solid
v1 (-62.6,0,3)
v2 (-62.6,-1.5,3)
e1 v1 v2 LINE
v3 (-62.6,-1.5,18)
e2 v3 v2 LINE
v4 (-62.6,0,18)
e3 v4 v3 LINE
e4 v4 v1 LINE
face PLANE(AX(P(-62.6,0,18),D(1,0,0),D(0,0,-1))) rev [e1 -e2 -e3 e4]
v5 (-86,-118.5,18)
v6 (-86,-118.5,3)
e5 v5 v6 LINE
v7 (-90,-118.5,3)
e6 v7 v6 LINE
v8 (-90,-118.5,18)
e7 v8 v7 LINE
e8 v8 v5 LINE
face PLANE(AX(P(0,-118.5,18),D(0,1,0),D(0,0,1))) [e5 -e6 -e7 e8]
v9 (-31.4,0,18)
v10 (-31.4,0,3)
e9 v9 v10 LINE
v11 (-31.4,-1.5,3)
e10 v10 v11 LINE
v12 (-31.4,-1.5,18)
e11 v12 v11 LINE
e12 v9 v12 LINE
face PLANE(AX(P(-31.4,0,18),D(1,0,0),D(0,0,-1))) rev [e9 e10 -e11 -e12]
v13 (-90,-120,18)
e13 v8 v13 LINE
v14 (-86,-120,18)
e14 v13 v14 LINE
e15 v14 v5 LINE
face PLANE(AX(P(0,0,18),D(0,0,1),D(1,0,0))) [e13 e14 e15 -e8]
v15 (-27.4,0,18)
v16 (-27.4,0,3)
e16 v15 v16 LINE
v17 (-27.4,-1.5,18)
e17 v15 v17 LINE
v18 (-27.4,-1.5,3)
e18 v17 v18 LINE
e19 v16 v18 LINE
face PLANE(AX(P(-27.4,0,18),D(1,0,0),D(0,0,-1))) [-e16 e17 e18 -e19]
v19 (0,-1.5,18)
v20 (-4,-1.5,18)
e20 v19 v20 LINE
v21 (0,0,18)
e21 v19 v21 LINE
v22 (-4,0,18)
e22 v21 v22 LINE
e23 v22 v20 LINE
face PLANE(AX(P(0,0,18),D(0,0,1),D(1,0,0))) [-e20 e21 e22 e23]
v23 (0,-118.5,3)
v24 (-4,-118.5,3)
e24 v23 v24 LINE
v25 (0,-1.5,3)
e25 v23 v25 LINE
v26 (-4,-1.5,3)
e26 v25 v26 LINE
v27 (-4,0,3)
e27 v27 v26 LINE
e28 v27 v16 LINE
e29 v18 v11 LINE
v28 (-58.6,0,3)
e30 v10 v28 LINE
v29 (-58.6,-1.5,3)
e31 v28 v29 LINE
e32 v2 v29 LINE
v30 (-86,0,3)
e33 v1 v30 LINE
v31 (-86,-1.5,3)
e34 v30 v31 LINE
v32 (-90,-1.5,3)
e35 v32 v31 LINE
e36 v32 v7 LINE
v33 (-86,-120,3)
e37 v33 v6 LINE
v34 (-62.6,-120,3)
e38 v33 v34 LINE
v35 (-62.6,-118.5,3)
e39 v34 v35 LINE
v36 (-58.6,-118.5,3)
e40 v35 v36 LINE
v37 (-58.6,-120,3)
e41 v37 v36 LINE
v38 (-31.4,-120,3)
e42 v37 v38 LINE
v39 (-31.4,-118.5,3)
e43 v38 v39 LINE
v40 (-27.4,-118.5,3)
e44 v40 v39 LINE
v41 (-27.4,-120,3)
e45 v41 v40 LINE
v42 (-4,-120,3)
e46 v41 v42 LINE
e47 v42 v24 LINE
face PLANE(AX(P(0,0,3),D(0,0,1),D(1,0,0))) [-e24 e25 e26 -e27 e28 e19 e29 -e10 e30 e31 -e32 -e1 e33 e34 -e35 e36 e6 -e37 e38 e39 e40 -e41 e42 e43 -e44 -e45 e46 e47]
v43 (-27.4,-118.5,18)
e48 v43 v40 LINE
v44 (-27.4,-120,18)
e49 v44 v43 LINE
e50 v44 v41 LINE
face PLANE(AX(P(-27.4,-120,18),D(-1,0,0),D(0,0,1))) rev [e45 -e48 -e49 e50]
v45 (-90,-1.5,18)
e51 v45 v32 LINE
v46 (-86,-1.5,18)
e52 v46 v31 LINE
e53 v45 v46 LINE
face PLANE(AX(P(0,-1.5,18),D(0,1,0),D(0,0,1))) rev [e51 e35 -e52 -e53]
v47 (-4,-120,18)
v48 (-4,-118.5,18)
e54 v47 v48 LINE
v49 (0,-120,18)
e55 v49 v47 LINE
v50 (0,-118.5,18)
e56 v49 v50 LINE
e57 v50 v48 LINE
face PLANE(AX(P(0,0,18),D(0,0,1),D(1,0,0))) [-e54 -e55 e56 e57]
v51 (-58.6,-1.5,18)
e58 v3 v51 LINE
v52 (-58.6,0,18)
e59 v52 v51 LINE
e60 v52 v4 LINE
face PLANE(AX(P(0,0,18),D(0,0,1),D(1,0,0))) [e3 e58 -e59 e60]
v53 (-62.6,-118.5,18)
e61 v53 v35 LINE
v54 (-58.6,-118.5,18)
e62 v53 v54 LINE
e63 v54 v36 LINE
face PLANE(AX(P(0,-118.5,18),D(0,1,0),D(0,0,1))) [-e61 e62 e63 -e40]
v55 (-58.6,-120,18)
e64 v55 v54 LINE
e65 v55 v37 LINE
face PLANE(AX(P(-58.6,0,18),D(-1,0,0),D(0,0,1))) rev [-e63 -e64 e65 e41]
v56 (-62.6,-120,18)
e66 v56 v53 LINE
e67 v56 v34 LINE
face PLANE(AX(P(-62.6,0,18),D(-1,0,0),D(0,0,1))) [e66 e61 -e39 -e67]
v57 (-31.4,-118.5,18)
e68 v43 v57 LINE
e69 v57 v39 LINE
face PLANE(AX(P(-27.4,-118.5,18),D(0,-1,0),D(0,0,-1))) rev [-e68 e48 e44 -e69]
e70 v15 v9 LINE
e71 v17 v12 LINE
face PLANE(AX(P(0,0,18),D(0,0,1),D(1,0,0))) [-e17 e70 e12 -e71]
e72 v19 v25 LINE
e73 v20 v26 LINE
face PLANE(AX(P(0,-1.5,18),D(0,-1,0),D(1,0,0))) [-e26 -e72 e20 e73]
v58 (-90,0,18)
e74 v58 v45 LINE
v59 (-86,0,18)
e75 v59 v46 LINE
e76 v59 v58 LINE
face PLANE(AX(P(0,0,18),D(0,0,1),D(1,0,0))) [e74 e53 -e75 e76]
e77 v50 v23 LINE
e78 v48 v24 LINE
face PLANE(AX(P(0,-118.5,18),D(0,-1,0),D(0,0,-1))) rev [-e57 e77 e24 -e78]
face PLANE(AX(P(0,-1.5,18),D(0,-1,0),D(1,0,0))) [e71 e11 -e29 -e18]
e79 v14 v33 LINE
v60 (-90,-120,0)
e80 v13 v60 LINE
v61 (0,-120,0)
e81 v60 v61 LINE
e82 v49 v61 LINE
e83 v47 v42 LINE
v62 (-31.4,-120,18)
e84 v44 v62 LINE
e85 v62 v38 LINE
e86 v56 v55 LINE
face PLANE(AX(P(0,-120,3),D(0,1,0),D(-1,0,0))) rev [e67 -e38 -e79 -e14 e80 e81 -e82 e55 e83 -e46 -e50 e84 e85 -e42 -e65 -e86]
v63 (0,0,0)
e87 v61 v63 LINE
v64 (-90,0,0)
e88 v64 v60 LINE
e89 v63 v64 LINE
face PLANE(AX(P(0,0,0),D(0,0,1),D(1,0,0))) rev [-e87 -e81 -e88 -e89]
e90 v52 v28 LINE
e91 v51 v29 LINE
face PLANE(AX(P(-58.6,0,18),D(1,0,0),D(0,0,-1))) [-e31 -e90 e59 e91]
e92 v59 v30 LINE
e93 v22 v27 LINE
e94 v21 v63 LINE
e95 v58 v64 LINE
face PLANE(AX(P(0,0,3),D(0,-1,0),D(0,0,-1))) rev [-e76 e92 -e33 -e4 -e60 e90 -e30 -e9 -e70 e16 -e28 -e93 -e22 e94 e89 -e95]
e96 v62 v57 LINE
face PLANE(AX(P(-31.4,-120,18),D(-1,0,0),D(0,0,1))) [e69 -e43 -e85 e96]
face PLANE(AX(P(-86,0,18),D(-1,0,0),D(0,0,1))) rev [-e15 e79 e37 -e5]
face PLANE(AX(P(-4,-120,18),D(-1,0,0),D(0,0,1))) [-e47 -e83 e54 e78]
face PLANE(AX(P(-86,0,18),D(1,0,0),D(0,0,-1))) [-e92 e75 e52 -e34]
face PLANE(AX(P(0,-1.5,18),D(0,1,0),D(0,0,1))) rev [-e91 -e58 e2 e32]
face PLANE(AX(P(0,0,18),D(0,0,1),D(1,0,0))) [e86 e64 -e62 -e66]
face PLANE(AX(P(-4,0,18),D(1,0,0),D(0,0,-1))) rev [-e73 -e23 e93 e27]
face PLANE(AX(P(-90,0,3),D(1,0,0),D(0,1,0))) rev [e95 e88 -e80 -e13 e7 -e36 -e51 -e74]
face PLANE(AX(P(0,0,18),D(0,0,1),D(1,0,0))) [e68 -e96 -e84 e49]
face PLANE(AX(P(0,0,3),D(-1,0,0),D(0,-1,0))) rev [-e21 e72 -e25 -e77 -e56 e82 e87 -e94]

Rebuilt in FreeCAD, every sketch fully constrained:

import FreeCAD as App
import Part
import Sketcher


def add_polygon(sketch, points):
    """Adds a closed chain of lines whose ends are joined by coincident constraints."""
    first, n = sketch.GeometryCount, len(points)
    for a, b in zip(points, points[1:] + points[:1]):
        sketch.addGeometry(Part.LineSegment(App.Vector(*a, 0), App.Vector(*b, 0)), False)
    for i in range(n):
        sketch.addConstraint(Sketcher.Constraint("Coincident", first + i, 2, first + (i + 1) % n, 1))

doc = App.newDocument("Part")
params = doc.addObject("Spreadsheet::Sheet", "Params")
for row, (alias, value) in enumerate([
    ("sketch1_width", "90 mm"),
    ("sketch1_height", "120 mm"),
    ("pad1_length", "3 mm"),
    ("sketch2_width", "4 mm"),
    ("sketch2_height", "1.5 mm"),
    ("pad2_length", "15 mm"),
], start=1):
    params.set(f"A{row}", alias)
    params.set(f"B{row}", "=" + value)
    params.setAlias(f"B{row}", alias)

body = doc.addObject("PartDesign::Body", "Body")

# Sketch on XY plane
sketch1 = doc.addObject("Sketcher::SketchObject", "Sketch")
body.addObject(sketch1)
sketch1.AttachmentSupport = (doc.XY_Plane, [""])
sketch1.MapMode = "FlatFace"
add_polygon(sketch1, [(-90, -120), (0, -120), (0, 0), (-90, 0)])  # lines 0-3
sketch1.addConstraint([
    Sketcher.Constraint("Horizontal", 0),
    Sketcher.Constraint("Vertical", 1),
    Sketcher.Constraint("Horizontal", 2),
    Sketcher.Constraint("Vertical", 3),
    Sketcher.Constraint("Coincident", 1, 2, -1, 1),
    Sketcher.Constraint("DistanceX", 0, 1, 0, 2, 90.0),
    Sketcher.Constraint("DistanceY", 1, 1, 1, 2, 120.0),
])
sketch1.setExpression("Constraints[9]", "Params.sketch1_width")
sketch1.setExpression("Constraints[10]", "Params.sketch1_height")
pad1 = doc.addObject("PartDesign::Pad", "Pad")
body.addObject(pad1)
pad1.Profile = sketch1
pad1.setExpression("Length", "Params.pad1_length")

# Sketch on XY plane
sketch2 = doc.addObject("Sketcher::SketchObject", "Sketch001")
body.addObject(sketch2)
sketch2.AttachmentSupport = (doc.XY_Plane, [""])
sketch2.MapMode = "FlatFace"
sketch2.AttachmentOffset = App.Placement(App.Vector(0, 0, 3), App.Rotation())
add_polygon(sketch2, [(-90, 0), (-90, -1.5), (-86, -1.5), (-86, 0)])  # lines 0-3
add_polygon(sketch2, [(-62.6, 0), (-62.6, -1.5), (-58.6, -1.5), (-58.6, 0)])  # lines 4-7
add_polygon(sketch2, [(-31.4, 0), (-31.4, -1.5), (-27.4, -1.5), (-27.4, 0)])  # lines 8-11
add_polygon(sketch2, [(-4, 0), (-4, -1.5), (0, -1.5), (0, 0)])  # lines 12-15
add_polygon(sketch2, [(-90, -118.5), (-90, -120), (-86, -120), (-86, -118.5)])  # lines 16-19
add_polygon(sketch2, [(-62.6, -118.5), (-62.6, -120), (-58.6, -120), (-58.6, -118.5)])  # lines 20-23
add_polygon(sketch2, [(-31.4, -118.5), (-31.4, -120), (-27.4, -120), (-27.4, -118.5)])  # lines 24-27
add_polygon(sketch2, [(-4, -118.5), (-4, -120), (0, -120), (0, -118.5)])  # lines 28-31
sketch2.addConstraint([
    Sketcher.Constraint("Vertical", 0),
    Sketcher.Constraint("Horizontal", 1),
    Sketcher.Constraint("Vertical", 2),
    Sketcher.Constraint("Horizontal", 3),
    Sketcher.Constraint("Vertical", 4),
    Sketcher.Constraint("Horizontal", 5),
    Sketcher.Constraint("Vertical", 6),
    Sketcher.Constraint("Horizontal", 7),
    Sketcher.Constraint("Vertical", 8),
    Sketcher.Constraint("Horizontal", 9),
    Sketcher.Constraint("Vertical", 10),
    Sketcher.Constraint("Horizontal", 11),
    Sketcher.Constraint("Vertical", 12),
    Sketcher.Constraint("Horizontal", 13),
    Sketcher.Constraint("Vertical", 14),
    Sketcher.Constraint("Horizontal", 15),
    Sketcher.Constraint("Vertical", 16),
    Sketcher.Constraint("Horizontal", 17),
    Sketcher.Constraint("Vertical", 18),
    Sketcher.Constraint("Horizontal", 19),
    Sketcher.Constraint("Vertical", 20),
    Sketcher.Constraint("Horizontal", 21),
    Sketcher.Constraint("Vertical", 22),
    Sketcher.Constraint("Horizontal", 23),
    Sketcher.Constraint("Vertical", 24),
    Sketcher.Constraint("Horizontal", 25),
    Sketcher.Constraint("Vertical", 26),
    Sketcher.Constraint("Horizontal", 27),
    Sketcher.Constraint("Vertical", 28),
    Sketcher.Constraint("Horizontal", 29),
    Sketcher.Constraint("Vertical", 30),
    Sketcher.Constraint("Horizontal", 31),
    Sketcher.Constraint("Coincident", 14, 2, -1, 1),
    Sketcher.Constraint("PointOnObject", 2, 2, -1),
    Sketcher.Constraint("PointOnObject", 6, 2, -1),
    Sketcher.Constraint("PointOnObject", 10, 2, -1),
    Sketcher.Constraint("PointOnObject", 29, 2, -2),
    Sketcher.Constraint("Horizontal", 1, 2, 4, 2),
    Sketcher.Constraint("Horizontal", 5, 2, 8, 2),
    Sketcher.Constraint("Horizontal", 9, 2, 12, 2),
    Sketcher.Constraint("Horizontal", 17, 2, 20, 2),
    Sketcher.Constraint("Horizontal", 19, 2, 22, 2),
    Sketcher.Constraint("Horizontal", 21, 2, 24, 2),
    Sketcher.Constraint("Horizontal", 23, 2, 26, 2),
    Sketcher.Constraint("Horizontal", 25, 2, 28, 2),
    Sketcher.Constraint("Horizontal", 27, 2, 30, 2),
    Sketcher.Constraint("Vertical", 3, 2, 16, 2),
    Sketcher.Constraint("Vertical", 2, 2, 17, 2),
    Sketcher.Constraint("Vertical", 7, 2, 20, 2),
    Sketcher.Constraint("Vertical", 6, 2, 21, 2),
    Sketcher.Constraint("Vertical", 11, 2, 24, 2),
    Sketcher.Constraint("Vertical", 10, 2, 25, 2),
    Sketcher.Constraint("Vertical", 15, 2, 28, 2),
    Sketcher.Constraint("Equal", 3, 5),
    Sketcher.Constraint("Equal", 7, 9),
    Sketcher.Constraint("Equal", 11, 13),
    Sketcher.Constraint("Equal", 14, 16),
    Sketcher.Constraint("DistanceX", 1, 1, 1, 2, 4.0),
    Sketcher.Constraint("DistanceY", 0, 2, 0, 1, 1.5),
    Sketcher.Constraint("DistanceX", 0, 2, -1, 1, 90.0),
    Sketcher.Constraint("DistanceY", 16, 2, -1, 1, 120.0),
    Sketcher.Constraint("DistanceX", 4, 2, -1, 1, 62.6),
    Sketcher.Constraint("DistanceX", 8, 2, -1, 1, 31.4),
])
sketch2.setExpression("Constraints[89]", "Params.sketch2_width")
sketch2.setExpression("Constraints[90]", "Params.sketch2_height")
pad2 = doc.addObject("PartDesign::Pad", "Pad001")
body.addObject(pad2)
pad2.Profile = sketch2
pad2.setExpression("Length", "Params.pad2_length")

doc.recompute()
